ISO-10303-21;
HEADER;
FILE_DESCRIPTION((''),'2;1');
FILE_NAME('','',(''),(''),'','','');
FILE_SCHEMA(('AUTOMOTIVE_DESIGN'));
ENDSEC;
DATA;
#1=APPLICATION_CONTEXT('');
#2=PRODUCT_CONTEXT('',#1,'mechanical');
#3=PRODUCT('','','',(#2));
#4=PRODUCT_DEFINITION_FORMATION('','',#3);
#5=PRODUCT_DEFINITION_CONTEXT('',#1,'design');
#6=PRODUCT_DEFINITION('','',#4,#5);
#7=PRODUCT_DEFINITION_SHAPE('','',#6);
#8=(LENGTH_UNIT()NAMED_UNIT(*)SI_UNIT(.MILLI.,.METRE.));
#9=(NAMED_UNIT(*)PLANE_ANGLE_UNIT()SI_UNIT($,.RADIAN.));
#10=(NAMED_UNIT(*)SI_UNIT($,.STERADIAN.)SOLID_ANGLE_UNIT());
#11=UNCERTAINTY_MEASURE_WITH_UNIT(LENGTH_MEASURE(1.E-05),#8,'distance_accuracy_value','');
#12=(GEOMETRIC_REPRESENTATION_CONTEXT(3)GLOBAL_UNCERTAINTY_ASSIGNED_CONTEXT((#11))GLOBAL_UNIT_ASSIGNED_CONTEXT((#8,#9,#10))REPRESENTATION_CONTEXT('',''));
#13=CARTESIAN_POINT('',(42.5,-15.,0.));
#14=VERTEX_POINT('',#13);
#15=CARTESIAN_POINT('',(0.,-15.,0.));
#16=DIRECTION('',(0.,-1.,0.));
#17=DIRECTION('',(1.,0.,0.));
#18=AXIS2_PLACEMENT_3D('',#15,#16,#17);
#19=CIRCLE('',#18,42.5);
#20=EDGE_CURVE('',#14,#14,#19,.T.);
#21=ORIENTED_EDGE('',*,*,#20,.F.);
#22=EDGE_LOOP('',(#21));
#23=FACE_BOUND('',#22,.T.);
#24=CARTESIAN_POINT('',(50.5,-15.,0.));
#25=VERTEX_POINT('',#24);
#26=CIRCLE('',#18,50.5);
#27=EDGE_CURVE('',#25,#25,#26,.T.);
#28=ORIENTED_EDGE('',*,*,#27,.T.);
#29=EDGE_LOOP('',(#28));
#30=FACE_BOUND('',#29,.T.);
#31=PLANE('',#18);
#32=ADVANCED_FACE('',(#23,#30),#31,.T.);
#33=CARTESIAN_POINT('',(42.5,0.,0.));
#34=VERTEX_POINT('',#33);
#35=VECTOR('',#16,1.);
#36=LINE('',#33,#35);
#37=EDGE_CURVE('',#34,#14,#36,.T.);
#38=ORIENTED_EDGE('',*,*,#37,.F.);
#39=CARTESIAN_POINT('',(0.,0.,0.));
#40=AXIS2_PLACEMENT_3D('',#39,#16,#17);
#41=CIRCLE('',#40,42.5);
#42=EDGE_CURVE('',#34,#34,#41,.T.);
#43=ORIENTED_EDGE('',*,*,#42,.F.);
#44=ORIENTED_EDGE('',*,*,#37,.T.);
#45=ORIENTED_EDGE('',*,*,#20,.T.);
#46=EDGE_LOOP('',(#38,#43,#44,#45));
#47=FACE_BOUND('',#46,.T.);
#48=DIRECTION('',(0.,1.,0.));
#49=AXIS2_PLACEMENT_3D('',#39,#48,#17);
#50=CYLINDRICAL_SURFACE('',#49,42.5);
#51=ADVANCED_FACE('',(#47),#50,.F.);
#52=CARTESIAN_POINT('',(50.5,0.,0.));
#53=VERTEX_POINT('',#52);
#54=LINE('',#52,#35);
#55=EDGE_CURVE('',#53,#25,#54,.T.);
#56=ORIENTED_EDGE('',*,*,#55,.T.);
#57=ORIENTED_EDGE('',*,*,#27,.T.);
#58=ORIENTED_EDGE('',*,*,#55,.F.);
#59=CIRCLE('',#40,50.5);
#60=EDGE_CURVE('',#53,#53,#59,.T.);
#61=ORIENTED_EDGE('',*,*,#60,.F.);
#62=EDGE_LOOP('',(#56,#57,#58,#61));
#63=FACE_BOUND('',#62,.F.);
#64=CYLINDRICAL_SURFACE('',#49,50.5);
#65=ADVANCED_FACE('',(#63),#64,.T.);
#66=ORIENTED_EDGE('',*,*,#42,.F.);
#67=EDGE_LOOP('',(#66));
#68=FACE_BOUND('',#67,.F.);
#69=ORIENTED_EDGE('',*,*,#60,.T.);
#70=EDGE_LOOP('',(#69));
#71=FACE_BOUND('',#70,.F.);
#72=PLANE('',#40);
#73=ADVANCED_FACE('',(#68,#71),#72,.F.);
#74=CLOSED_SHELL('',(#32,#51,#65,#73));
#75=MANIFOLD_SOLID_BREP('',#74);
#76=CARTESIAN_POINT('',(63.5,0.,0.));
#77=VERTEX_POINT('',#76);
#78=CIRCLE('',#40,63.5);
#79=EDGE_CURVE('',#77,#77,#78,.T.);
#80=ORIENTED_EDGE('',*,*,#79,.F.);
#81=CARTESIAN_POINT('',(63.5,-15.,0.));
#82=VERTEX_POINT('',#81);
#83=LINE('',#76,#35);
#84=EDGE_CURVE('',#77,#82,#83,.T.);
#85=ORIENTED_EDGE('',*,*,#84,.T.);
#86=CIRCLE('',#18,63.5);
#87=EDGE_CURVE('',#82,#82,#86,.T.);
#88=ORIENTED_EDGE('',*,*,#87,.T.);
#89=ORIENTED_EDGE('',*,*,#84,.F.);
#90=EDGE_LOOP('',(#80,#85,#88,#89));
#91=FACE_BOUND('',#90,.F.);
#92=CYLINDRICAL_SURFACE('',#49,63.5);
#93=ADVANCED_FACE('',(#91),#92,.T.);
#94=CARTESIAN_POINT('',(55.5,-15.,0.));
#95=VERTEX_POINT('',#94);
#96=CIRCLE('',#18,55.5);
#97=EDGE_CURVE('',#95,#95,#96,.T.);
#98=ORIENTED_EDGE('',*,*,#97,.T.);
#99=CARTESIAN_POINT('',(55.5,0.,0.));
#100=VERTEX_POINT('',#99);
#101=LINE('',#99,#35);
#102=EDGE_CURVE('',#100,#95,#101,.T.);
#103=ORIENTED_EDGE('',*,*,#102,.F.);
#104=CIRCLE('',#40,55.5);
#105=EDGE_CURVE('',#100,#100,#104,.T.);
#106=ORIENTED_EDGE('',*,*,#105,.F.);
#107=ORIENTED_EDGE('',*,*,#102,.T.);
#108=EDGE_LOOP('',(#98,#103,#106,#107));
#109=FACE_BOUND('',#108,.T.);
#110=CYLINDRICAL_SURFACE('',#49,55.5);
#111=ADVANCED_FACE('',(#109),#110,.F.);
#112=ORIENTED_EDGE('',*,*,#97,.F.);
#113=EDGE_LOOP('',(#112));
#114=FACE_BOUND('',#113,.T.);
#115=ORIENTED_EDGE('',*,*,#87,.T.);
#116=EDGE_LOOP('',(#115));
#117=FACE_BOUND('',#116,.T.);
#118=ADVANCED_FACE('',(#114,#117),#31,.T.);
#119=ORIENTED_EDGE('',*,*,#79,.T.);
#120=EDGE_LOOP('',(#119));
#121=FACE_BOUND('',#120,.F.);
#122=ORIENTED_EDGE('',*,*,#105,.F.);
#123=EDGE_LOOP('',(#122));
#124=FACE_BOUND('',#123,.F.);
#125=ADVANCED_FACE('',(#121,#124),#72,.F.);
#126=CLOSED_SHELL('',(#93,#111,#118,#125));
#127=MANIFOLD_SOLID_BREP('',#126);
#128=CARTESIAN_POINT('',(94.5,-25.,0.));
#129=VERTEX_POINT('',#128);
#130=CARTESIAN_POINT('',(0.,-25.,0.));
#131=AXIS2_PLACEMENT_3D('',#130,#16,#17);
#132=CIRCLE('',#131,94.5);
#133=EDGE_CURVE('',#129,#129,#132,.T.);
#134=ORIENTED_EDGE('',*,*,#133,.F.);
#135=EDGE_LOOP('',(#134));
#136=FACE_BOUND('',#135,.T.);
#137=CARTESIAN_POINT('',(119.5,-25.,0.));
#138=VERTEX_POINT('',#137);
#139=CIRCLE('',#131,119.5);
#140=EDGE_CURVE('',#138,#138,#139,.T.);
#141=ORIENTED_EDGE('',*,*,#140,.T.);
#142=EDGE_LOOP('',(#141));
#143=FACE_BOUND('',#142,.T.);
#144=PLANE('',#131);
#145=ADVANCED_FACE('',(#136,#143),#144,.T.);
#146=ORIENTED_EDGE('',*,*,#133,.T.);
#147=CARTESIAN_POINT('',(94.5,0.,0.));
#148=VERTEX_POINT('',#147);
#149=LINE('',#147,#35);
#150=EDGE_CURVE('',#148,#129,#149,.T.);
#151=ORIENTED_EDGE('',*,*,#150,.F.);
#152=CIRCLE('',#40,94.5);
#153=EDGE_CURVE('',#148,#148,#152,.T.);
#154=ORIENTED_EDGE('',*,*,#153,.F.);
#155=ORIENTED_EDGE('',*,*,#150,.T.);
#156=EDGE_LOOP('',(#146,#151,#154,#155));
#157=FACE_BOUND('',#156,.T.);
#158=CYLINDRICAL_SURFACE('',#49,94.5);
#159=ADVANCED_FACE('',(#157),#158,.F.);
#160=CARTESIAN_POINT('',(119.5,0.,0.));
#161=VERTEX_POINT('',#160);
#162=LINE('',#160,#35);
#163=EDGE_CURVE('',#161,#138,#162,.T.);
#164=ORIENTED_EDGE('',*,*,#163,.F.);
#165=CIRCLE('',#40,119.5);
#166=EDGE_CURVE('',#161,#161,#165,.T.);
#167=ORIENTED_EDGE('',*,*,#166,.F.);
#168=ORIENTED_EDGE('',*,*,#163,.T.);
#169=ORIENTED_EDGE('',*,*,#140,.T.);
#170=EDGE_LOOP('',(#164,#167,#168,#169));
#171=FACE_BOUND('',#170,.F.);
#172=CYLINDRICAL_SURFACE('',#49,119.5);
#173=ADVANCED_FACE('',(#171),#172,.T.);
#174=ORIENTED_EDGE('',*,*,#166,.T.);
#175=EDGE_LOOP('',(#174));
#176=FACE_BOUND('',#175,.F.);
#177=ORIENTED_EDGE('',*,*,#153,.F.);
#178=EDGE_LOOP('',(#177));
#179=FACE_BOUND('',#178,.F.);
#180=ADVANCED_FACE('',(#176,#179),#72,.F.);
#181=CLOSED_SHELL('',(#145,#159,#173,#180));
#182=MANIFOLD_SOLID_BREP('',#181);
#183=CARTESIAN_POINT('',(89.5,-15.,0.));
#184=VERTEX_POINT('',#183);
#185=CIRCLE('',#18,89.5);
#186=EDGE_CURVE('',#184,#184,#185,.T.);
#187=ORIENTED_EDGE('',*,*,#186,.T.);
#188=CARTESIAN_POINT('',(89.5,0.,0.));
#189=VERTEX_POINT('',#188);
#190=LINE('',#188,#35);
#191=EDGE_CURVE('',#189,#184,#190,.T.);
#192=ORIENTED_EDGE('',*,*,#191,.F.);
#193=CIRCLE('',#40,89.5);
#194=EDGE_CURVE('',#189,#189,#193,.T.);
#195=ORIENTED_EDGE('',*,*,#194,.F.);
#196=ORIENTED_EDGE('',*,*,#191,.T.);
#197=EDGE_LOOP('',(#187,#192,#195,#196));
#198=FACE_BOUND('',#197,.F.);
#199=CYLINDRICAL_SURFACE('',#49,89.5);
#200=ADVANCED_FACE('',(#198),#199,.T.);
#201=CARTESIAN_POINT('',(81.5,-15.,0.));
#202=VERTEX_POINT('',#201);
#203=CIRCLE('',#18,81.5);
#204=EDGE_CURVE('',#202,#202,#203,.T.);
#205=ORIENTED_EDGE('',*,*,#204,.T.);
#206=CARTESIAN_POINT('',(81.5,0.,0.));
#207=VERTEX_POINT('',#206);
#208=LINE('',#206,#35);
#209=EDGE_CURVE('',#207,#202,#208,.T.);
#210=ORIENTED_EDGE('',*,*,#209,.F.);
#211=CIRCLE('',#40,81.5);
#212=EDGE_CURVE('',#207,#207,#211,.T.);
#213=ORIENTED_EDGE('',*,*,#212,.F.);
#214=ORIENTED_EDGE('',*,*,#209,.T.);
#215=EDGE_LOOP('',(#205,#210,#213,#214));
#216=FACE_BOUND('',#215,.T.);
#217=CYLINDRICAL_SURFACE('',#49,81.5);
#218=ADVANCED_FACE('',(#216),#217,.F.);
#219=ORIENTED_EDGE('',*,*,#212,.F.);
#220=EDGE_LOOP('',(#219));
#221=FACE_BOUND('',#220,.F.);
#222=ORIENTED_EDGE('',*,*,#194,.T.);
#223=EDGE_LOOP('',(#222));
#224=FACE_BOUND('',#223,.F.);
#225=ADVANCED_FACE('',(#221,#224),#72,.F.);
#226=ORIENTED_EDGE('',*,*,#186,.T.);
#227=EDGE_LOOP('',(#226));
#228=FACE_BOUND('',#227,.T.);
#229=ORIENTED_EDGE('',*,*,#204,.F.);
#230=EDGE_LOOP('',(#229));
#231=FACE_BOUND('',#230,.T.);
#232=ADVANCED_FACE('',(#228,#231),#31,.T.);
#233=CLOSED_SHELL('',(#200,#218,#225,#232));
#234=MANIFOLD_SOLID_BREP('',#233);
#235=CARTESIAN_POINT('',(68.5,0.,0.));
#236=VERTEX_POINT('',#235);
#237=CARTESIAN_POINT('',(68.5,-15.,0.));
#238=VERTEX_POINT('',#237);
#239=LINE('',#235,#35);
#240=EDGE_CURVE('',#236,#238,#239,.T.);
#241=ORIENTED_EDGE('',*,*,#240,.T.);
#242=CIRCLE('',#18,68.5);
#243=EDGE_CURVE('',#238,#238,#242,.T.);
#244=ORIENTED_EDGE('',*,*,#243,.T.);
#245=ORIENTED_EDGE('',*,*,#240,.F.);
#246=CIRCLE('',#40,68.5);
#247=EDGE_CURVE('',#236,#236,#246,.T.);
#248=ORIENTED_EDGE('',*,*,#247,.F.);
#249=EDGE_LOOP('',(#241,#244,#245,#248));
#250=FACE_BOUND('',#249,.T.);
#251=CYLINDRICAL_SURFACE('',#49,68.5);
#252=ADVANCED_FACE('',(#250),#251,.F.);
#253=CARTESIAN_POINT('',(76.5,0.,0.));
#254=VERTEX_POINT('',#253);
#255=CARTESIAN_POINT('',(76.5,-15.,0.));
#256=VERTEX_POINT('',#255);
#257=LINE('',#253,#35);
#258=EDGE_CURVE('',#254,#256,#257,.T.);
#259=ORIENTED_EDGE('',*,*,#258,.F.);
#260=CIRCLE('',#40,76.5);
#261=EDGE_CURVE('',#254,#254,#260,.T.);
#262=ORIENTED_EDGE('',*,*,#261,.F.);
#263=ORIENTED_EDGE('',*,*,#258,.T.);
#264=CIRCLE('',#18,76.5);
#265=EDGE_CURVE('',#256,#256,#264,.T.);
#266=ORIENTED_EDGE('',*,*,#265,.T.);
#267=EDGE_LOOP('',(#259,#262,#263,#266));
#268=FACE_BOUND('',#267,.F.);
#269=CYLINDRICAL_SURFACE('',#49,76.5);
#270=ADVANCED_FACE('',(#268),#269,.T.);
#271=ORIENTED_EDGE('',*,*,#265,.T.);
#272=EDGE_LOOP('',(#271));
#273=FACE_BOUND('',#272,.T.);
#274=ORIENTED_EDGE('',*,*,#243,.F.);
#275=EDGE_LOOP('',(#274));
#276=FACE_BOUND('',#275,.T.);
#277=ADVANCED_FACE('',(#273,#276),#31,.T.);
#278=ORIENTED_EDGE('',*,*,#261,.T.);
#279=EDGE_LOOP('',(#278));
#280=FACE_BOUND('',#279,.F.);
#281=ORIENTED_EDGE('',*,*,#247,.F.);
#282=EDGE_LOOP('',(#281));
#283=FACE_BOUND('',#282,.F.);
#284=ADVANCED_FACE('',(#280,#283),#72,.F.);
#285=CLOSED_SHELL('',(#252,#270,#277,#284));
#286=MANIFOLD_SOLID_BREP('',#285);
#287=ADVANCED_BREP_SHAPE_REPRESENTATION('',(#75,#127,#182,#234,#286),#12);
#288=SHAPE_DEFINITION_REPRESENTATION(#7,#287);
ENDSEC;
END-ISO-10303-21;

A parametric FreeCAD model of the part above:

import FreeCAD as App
import Part
import Sketcher

V = App.Vector

doc = App.newDocument("Part")
body = doc.addObject("PartDesign::Body", "Body")

# Sketch on XZ plane
sketch1 = doc.addObject("Sketcher::SketchObject", "Sketch")
body.addObject(sketch1)
sketch1.AttachmentSupport = (doc.XZ_Plane, [""])
sketch1.MapMode = "FlatFace"
sketch1.addGeometry([
    Part.Circle(V(0, 0, 0), V(0, 0, 1), 50),
    Part.Circle(V(0, 0, 0), V(0, 0, 1), 42),
], False)
sketch1.addConstraint([
    Sketcher.Constraint("Coincident", 0, 3, -1, 1),
    Sketcher.Constraint("Coincident", 1, 3, -1, 1),
    Sketcher.Constraint("Diameter", 0, 101.0),
    Sketcher.Constraint("Diameter", 1, 85.0),
])
pad1 = doc.addObject("PartDesign::Pad", "Pad")
body.addObject(pad1)
pad1.Profile = sketch1
pad1.Length = 15
body2 = doc.addObject("PartDesign::Body", "Body001")

# Sketch on XZ plane
sketch2 = doc.addObject("Sketcher::SketchObject", "Sketch001")
body2.addObject(sketch2)
sketch2.AttachmentSupport = (doc.getObject("XZ_Plane001"), [""])
sketch2.MapMode = "FlatFace"
sketch2.addGeometry([
    Part.Circle(V(0, 0, 0), V(0, 0, 1), 64),
    Part.Circle(V(0, 0, 0), V(0, 0, 1), 56),
], False)
sketch2.addConstraint([
    Sketcher.Constraint("Coincident", 0, 3, -1, 1),
    Sketcher.Constraint("Coincident", 1, 3, -1, 1),
    Sketcher.Constraint("Diameter", 0, 127.0),
    Sketcher.Constraint("Diameter", 1, 111.0),
])
pad2 = doc.addObject("PartDesign::Pad", "Pad001")
body2.addObject(pad2)
pad2.Profile = sketch2
pad2.Length = 15
body3 = doc.addObject("PartDesign::Body", "Body002")

# Sketch on XZ plane
sketch3 = doc.addObject("Sketcher::SketchObject", "Sketch002")
body3.addObject(sketch3)
sketch3.AttachmentSupport = (doc.getObject("XZ_Plane002"), [""])
sketch3.MapMode = "FlatFace"
sketch3.addGeometry([
    Part.Circle(V(0, 0, 0), V(0, 0, 1), 76),
    Part.Circle(V(0, 0, 0), V(0, 0, 1), 68),
], False)
sketch3.addConstraint([
    Sketcher.Constraint("Coincident", 0, 3, -1, 1),
    Sketcher.Constraint("Coincident", 1, 3, -1, 1),
    Sketcher.Constraint("Diameter", 0, 153.0),
    Sketcher.Constraint("Diameter", 1, 137.0),
])
pad3 = doc.addObject("PartDesign::Pad", "Pad002")
body3.addObject(pad3)
pad3.Profile = sketch3
pad3.Length = 15
body4 = doc.addObject("PartDesign::Body", "Body003")

# Sketch on XZ plane
sketch4 = doc.addObject("Sketcher::SketchObject", "Sketch003")
body4.addObject(sketch4)
sketch4.AttachmentSupport = (doc.getObject("XZ_Plane003"), [""])
sketch4.MapMode = "FlatFace"
sketch4.addGeometry([
    Part.Circle(V(0, 0, 0), V(0, 0, 1), 90),
    Part.Circle(V(0, 0, 0), V(0, 0, 1), 82),
], False)
sketch4.addConstraint([
    Sketcher.Constraint("Coincident", 0, 3, -1, 1),
    Sketcher.Constraint("Coincident", 1, 3, -1, 1),
    Sketcher.Constraint("Diameter", 0, 179.0),
    Sketcher.Constraint("Diameter", 1, 163.0),
])
pad4 = doc.addObject("PartDesign::Pad", "Pad003")
body4.addObject(pad4)
pad4.Profile = sketch4
pad4.Length = 15
body5 = doc.addObject("PartDesign::Body", "Body004")

# Sketch on XZ plane
sketch5 = doc.addObject("Sketcher::SketchObject", "Sketch004")
body5.addObject(sketch5)
sketch5.AttachmentSupport = (doc.getObject("XZ_Plane004"), [""])
sketch5.MapMode = "FlatFace"
sketch5.addGeometry([
    Part.Circle(V(0, 0, 0), V(0, 0, 1), 120),
    Part.Circle(V(0, 0, 0), V(0, 0, 1), 94),
], False)
sketch5.addConstraint([
    Sketcher.Constraint("Coincident", 0, 3, -1, 1),
    Sketcher.Constraint("Coincident", 1, 3, -1, 1),
    Sketcher.Constraint("Diameter", 0, 239.0),
    Sketcher.Constraint("Diameter", 1, 189.0),
])
pad5 = doc.addObject("PartDesign::Pad", "Pad004")
body5.addObject(pad5)
pad5.Profile = sketch5
pad5.Length = 25

doc.recompute()
